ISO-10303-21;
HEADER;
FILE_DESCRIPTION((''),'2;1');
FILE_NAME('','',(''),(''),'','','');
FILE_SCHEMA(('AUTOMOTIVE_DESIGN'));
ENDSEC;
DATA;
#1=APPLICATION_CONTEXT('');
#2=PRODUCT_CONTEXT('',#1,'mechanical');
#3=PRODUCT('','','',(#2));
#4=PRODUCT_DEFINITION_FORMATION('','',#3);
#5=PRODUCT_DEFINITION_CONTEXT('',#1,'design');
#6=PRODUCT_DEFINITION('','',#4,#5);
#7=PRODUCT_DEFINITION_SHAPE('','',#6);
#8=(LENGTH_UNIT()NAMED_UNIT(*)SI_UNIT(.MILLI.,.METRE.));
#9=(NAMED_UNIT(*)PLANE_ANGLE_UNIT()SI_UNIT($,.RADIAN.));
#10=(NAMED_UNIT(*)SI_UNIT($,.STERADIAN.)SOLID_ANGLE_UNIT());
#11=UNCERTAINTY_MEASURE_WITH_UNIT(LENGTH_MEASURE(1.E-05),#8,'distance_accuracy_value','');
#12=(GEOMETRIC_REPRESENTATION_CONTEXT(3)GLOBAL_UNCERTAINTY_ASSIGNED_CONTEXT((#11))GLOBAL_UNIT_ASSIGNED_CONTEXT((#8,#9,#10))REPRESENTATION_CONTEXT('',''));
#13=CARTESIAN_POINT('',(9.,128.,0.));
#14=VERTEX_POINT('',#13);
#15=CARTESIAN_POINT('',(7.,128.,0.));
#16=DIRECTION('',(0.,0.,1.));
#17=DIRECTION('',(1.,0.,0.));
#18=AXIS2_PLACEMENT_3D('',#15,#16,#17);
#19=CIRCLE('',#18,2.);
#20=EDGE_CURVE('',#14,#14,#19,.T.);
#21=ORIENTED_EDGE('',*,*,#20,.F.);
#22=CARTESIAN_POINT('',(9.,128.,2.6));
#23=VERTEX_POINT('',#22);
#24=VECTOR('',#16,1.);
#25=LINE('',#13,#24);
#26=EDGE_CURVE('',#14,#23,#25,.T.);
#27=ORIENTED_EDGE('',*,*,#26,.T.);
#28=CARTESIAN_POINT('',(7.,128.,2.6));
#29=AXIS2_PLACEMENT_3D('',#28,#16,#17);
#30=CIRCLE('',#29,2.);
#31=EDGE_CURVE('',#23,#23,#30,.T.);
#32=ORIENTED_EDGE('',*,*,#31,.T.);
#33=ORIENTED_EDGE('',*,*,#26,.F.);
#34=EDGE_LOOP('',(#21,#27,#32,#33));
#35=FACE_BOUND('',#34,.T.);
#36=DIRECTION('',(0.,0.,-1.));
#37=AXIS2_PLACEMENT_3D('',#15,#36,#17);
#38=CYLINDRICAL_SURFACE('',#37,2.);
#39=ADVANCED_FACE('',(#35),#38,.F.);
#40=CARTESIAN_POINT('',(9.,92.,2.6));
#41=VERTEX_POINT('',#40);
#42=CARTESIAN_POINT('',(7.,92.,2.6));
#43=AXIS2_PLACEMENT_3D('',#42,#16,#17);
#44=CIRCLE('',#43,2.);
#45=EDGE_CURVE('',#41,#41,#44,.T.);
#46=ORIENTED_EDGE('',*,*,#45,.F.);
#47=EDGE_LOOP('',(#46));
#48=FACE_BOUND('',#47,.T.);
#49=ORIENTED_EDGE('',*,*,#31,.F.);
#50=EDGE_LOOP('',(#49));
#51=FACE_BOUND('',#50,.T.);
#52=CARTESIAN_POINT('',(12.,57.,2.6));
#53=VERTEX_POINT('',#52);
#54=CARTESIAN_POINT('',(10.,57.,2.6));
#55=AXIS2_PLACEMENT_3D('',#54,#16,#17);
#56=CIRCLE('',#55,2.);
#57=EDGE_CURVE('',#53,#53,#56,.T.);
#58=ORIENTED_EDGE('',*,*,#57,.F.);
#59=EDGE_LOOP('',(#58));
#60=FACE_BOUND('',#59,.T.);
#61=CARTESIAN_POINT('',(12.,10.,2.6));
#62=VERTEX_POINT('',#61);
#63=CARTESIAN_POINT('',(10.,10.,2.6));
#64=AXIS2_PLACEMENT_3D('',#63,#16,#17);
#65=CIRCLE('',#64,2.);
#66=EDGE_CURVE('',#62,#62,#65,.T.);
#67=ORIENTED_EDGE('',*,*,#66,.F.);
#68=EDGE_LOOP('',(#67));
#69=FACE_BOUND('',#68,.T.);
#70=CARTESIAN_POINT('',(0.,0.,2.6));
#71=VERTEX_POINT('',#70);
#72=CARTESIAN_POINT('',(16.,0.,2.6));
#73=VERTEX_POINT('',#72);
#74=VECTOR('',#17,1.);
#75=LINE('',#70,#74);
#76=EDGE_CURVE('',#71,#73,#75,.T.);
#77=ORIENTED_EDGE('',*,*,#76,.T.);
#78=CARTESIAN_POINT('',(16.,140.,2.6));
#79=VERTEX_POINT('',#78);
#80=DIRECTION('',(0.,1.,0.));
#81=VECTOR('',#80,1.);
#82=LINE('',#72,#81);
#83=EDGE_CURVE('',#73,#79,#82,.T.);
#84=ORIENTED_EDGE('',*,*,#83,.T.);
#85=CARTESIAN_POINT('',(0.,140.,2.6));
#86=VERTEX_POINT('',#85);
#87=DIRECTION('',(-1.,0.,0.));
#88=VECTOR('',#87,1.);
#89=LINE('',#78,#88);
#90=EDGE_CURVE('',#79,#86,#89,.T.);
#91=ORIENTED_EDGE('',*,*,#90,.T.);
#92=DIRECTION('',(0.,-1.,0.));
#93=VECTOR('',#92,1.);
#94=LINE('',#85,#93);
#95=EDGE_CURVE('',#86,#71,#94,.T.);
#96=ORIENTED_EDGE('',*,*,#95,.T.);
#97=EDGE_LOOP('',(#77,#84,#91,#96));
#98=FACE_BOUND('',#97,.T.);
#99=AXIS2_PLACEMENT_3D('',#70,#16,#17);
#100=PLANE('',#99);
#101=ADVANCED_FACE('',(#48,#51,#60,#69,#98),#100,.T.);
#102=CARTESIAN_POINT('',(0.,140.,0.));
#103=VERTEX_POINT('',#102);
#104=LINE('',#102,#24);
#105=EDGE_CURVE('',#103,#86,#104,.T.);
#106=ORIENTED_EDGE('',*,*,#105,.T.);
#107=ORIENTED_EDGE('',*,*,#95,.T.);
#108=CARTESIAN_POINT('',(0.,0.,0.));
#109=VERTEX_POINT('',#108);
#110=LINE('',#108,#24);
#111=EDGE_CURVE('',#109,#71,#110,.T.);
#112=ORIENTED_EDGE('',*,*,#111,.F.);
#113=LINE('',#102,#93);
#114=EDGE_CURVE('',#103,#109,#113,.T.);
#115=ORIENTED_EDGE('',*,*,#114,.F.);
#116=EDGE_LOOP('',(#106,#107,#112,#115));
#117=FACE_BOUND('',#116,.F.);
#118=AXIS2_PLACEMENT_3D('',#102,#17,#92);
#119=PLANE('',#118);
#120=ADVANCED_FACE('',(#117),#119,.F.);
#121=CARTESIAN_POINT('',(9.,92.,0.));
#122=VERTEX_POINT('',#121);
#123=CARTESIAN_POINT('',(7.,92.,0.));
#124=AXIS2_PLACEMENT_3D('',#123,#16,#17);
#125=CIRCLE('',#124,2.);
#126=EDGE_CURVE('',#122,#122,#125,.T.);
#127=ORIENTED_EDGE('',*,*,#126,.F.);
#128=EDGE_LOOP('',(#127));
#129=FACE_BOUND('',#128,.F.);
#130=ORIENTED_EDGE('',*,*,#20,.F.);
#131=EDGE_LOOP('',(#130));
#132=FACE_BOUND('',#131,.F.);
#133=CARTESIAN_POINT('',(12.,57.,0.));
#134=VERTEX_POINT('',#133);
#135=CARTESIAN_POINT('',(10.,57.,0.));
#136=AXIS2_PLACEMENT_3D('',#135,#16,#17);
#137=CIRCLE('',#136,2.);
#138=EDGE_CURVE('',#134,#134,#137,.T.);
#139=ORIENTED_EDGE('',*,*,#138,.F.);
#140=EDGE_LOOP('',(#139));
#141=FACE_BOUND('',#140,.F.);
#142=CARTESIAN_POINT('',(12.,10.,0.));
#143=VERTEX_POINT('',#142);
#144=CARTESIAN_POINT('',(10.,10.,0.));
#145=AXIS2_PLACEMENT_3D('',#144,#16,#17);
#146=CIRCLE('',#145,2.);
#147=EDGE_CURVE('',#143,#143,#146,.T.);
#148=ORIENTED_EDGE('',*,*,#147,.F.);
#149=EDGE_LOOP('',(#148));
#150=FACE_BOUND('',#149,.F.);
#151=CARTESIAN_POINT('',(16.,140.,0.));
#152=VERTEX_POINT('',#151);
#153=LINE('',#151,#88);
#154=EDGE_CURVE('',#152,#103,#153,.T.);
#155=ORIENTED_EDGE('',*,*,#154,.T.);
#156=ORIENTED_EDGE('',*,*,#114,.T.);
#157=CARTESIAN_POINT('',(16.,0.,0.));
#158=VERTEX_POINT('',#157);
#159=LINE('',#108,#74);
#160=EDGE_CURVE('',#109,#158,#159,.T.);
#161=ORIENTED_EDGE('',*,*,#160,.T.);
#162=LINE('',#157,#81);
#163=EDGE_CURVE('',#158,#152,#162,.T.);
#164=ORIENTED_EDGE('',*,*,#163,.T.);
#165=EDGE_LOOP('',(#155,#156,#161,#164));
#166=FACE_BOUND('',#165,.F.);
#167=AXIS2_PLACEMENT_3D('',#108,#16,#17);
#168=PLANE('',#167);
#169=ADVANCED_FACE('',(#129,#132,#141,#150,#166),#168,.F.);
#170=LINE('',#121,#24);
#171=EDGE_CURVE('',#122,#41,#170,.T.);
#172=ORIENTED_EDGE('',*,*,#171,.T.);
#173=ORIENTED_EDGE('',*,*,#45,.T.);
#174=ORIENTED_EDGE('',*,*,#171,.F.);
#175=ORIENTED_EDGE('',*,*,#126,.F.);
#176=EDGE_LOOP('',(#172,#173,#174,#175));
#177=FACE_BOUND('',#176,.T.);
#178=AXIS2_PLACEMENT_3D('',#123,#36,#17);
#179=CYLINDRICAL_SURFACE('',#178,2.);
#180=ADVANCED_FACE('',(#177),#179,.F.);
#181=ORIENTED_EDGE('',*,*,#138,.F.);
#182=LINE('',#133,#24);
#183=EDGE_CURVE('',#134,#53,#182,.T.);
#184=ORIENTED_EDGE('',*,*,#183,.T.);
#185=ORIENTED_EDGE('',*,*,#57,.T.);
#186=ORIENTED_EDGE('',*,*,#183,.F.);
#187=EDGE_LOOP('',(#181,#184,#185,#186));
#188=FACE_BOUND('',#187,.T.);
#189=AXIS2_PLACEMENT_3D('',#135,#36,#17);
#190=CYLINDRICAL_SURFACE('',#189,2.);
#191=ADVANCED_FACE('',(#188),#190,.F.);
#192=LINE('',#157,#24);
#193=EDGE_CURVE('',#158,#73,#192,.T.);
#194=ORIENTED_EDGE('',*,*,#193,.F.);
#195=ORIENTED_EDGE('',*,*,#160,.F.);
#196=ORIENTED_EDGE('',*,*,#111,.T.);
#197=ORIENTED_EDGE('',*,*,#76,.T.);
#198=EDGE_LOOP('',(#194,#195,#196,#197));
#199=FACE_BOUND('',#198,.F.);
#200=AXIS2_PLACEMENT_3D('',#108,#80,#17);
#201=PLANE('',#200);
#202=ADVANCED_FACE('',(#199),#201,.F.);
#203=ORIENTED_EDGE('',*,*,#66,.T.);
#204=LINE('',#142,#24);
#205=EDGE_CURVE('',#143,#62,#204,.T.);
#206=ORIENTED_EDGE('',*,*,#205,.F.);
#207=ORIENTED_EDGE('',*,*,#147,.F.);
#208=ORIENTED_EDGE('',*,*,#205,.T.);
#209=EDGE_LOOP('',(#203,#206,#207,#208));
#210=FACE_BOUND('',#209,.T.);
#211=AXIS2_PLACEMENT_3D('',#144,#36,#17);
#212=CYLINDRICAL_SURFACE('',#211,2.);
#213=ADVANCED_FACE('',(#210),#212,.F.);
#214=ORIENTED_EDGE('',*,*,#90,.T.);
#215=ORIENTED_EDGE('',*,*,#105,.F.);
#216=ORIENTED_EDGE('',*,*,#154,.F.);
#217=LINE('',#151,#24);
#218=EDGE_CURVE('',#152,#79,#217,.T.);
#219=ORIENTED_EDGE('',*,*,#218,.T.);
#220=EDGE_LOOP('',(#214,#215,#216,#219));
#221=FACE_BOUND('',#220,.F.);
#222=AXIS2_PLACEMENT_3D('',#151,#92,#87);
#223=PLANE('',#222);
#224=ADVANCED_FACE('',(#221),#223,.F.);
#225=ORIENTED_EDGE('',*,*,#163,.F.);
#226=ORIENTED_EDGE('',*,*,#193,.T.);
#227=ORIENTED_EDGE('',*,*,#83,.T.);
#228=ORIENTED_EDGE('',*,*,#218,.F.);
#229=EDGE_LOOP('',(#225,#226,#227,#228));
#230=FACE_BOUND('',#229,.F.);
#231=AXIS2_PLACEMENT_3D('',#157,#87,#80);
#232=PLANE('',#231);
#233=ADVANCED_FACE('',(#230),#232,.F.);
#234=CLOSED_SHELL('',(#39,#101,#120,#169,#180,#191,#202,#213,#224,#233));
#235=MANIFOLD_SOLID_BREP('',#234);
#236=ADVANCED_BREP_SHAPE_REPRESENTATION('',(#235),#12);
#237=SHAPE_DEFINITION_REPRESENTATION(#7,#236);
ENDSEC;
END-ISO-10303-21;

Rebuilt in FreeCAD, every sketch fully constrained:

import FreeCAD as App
import Part
import Sketcher

V = App.Vector
Q = App.Units.Quantity


def add_polygon(sketch, points):
    """Adds a closed chain of lines whose ends are joined by coincident constraints."""
    first, n = sketch.GeometryCount, len(points)
    for a, b in zip(points, points[1:] + points[:1]):
        sketch.addGeometry(Part.LineSegment(App.Vector(*a, 0), App.Vector(*b, 0)), False)
    for i in range(n):
        sketch.addConstraint(Sketcher.Constraint("Coincident", first + i, 2, first + (i + 1) % n, 1))

doc = App.newDocument("Part")
body = doc.addObject("PartDesign::Body", "Body")

# Sketch on XY plane
sketch1 = body.newObject("Sketcher::SketchObject", "Sketch")
sketch1.AttachmentSupport = (doc.getObject("XY_Plane"), [""])
sketch1.MapMode = "FlatFace"
add_polygon(sketch1, [(0, 140), (0, 0), (16, 0), (16, 140)])  # lines 0-3
sketch1.addGeometry(Part.Circle(V(10, 10, 0), V(0, 0, 1), 2), False)  # 4
sketch1.addGeometry(Part.Circle(V(10, 57, 0), V(0, 0, 1), 2), False)  # 5
sketch1.addGeometry(Part.Circle(V(7, 92, 0), V(0, 0, 1), 2), False)  # 6
sketch1.addGeometry(Part.Circle(V(7, 128, 0), V(0, 0, 1), 2), False)  # 7
sketch1.addConstraint([
    Sketcher.Constraint("Vertical", 0),
    Sketcher.Constraint("Horizontal", 1),
    Sketcher.Constraint("Vertical", 2),
    Sketcher.Constraint("Horizontal", 3),
    Sketcher.Constraint("Coincident", 0, 2, -1, 1),
    Sketcher.Constraint("Equal", 4, 5),
    Sketcher.Constraint("Equal", 5, 6),
    Sketcher.Constraint("Equal", 6, 7),
    Sketcher.Constraint("Vertical", 4, 3, 5, 3),
    Sketcher.Constraint("Vertical", 6, 3, 7, 3),
    Sketcher.Constraint("Diameter", 4, Q("4 mm")),
    Sketcher.Constraint("DistanceX", 1, 1, 1, 2, Q("16 mm")),
    Sketcher.Constraint("DistanceY", 0, 2, 0, 1, Q("140 mm")),
    Sketcher.Constraint("DistanceX", -1, 1, 4, 3, Q("10 mm")),
    Sketcher.Constraint("DistanceY", -1, 1, 4, 3, Q("10 mm")),
    Sketcher.Constraint("DistanceX", -1, 1, 6, 3, Q("7 mm")),
    Sketcher.Constraint("DistanceY", 7, 3, 2, 2, Q("12 mm")),
    Sketcher.Constraint("DistanceY", 6, 3, 2, 2, Q("48 mm")),
    Sketcher.Constraint("DistanceY", 5, 3, 2, 2, Q("83 mm")),
])
pad1 = body.newObject("PartDesign::Pad", "Pad")
pad1.Profile = sketch1
pad1.Length = 2.6

doc.recompute()
